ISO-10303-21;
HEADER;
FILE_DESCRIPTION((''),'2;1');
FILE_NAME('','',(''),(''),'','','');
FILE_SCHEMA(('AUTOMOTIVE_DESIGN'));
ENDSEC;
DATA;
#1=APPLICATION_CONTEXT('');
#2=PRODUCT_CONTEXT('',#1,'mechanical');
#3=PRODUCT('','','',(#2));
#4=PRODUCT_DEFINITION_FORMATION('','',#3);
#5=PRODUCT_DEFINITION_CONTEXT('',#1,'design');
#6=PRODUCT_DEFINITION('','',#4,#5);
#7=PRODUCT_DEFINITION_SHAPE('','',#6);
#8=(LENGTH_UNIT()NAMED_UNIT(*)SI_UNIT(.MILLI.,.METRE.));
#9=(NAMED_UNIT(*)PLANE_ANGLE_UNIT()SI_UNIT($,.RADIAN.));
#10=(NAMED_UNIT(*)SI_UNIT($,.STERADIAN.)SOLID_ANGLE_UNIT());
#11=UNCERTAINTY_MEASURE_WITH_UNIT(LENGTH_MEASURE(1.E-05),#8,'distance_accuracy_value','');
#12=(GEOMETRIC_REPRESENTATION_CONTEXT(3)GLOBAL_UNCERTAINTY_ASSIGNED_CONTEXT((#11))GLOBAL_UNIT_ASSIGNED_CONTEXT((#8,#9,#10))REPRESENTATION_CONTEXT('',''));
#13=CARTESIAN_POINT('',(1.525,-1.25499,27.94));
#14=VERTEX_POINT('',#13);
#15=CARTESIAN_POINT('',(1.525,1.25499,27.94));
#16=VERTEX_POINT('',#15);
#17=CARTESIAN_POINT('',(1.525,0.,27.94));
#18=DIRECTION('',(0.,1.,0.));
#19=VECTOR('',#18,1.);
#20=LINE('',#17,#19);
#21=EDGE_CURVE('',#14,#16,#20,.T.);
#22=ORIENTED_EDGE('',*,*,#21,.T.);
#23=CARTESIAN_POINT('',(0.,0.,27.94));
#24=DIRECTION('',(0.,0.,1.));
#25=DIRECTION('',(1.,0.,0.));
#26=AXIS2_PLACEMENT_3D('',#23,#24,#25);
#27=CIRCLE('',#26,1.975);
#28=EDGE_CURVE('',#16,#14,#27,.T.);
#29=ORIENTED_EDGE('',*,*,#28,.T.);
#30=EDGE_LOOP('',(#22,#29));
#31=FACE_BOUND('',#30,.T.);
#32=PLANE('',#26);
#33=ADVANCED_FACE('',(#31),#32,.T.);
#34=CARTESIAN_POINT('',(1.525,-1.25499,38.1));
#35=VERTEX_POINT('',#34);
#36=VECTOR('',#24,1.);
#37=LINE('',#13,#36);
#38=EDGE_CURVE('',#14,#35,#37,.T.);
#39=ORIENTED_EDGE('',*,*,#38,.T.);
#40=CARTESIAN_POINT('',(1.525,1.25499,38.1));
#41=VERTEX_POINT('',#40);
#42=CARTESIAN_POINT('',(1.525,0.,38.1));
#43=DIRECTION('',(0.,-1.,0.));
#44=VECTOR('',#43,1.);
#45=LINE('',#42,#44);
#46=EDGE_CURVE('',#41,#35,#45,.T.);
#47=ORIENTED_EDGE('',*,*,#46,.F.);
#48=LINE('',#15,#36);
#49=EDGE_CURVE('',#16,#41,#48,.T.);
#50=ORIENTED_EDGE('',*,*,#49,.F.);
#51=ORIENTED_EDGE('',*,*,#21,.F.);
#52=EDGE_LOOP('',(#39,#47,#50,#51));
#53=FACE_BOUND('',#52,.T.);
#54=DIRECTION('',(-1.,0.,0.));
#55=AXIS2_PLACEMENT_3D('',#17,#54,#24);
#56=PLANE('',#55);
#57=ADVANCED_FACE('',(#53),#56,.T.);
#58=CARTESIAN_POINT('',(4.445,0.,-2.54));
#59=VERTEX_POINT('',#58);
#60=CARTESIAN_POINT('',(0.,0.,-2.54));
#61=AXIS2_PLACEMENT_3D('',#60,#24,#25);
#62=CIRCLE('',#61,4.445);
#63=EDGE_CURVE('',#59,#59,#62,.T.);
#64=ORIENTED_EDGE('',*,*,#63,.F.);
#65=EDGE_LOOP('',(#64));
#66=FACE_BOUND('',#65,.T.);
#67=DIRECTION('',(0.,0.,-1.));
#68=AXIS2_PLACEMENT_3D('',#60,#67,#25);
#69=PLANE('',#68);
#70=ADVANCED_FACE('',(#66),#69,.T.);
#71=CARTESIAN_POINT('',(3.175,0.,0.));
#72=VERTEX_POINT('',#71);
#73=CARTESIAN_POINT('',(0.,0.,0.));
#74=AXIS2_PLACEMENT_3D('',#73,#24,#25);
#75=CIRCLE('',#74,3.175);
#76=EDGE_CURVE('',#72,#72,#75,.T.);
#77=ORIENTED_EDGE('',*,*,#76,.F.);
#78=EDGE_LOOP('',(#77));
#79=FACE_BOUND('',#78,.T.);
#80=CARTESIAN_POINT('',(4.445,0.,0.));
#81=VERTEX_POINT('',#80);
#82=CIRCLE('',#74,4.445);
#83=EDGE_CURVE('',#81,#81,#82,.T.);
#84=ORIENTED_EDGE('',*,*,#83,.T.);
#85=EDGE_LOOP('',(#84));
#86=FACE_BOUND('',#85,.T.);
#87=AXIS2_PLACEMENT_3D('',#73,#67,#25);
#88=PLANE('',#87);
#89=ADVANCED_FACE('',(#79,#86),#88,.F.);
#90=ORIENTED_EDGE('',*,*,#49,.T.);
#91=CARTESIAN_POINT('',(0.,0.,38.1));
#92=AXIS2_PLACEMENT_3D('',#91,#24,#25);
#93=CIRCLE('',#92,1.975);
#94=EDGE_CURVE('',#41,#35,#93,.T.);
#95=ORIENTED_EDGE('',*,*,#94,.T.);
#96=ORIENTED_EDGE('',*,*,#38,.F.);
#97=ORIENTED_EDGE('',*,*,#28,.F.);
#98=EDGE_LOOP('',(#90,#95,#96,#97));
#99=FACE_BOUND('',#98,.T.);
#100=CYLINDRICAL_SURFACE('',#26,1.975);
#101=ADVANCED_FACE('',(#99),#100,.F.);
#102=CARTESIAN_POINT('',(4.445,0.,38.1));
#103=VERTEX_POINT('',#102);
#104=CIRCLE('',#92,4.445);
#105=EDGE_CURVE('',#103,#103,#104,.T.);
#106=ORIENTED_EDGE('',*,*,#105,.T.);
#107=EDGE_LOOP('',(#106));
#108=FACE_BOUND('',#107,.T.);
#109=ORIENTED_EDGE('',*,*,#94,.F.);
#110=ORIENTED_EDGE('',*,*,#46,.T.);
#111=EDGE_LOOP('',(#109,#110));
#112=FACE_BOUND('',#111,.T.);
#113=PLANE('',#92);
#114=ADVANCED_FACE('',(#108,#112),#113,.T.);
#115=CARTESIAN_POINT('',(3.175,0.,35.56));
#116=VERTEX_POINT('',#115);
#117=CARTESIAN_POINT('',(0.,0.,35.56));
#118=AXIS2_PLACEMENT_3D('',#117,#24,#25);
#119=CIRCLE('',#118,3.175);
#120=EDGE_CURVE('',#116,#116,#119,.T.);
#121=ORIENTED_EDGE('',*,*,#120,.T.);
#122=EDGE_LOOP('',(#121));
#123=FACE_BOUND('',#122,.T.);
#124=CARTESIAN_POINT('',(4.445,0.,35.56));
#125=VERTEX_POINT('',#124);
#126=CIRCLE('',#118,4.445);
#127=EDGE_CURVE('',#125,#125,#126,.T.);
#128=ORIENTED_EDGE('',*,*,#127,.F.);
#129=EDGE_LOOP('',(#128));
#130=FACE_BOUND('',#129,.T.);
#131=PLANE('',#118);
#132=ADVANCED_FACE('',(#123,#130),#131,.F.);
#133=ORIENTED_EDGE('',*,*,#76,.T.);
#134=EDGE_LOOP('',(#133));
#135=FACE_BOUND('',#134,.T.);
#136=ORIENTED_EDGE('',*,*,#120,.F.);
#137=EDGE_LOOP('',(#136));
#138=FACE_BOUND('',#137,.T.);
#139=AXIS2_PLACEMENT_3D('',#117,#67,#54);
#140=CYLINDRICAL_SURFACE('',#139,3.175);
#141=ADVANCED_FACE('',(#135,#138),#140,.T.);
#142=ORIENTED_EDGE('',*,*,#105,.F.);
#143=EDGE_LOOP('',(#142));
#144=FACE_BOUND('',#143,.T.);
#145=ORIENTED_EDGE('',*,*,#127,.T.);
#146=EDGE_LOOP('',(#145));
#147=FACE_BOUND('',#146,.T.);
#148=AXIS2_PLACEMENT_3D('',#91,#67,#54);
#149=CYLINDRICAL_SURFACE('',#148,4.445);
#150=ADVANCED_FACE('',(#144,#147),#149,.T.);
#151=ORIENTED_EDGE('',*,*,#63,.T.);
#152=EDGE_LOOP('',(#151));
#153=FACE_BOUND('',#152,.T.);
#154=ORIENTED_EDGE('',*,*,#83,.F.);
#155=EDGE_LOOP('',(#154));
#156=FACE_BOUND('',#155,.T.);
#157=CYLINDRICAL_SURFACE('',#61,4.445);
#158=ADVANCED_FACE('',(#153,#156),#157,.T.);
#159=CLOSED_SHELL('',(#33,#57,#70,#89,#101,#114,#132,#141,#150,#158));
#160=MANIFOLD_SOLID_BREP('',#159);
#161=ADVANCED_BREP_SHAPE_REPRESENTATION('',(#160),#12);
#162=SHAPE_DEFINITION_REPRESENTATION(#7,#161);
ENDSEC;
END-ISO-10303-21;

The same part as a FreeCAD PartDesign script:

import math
import FreeCAD as App
import Part
import Sketcher

V = App.Vector
Q = App.Units.Quantity

doc = App.newDocument("Part")
body = doc.addObject("PartDesign::Body", "Body")

sketch1 = doc.addObject("Sketcher::SketchObject", "Sketch")
body.addObject(sketch1)
sketch1.AttachmentSupport = (doc.XY_Plane, [""])
sketch1.MapMode = "FlatFace"
sketch1.addGeometry(Part.Circle(V(0, 0, 0), V(0, 0, 1), 3.2), False)
sketch1.addConstraint(Sketcher.Constraint("Coincident", 0, 3, -1, 1))
sketch1.addConstraint(Sketcher.Constraint("Diameter", 0, Q("0.25 in")))
pad1 = doc.addObject("PartDesign::Pad", "Pad")
body.addObject(pad1)
pad1.Profile = sketch1
pad1.Length = Q("1.4 in")

sketch2 = doc.addObject("Sketcher::SketchObject", "Sketch001")
body.addObject(sketch2)
sketch2.AttachmentSupport = (doc.XY_Plane, [""])
sketch2.MapMode = "FlatFace"
sketch2.AttachmentOffset = App.Placement(V(0, 0, 1.4 * 25.4), App.Rotation())
sketch2.addGeometry(Part.Circle(V(0, 0, 0), V(0, 0, 1), 4.4), False)
sketch2.addConstraint(Sketcher.Constraint("Coincident", 0, 3, -1, 1))
sketch2.addConstraint(Sketcher.Constraint("Diameter", 0, Q("0.35 in")))
pad2 = doc.addObject("PartDesign::Pad", "Pad001")
body.addObject(pad2)
pad2.Profile = sketch2
pad2.Length = Q("0.1 in")
doc.recompute()

datumplane = doc.addObject("PartDesign::Plane", "DatumPlane")
body.addObject(datumplane)
datumplane.AttachmentSupport = (doc.XY_Plane, [""])
datumplane.MapMode = "FlatFace"
datumplane.AttachmentOffset = App.Placement(V(0, 0, 0.7 * 25.4), App.Rotation())
mirrored = doc.addObject("PartDesign::Mirrored", "Mirrored")
body.addObject(mirrored)
mirrored.Originals = [pad2]
mirrored.MirrorPlane = (datumplane, [""])
body.Tip = mirrored

sketch3 = doc.addObject("Sketcher::SketchObject", "Sketch002")
body.addObject(sketch3)
sketch3.AttachmentSupport = (doc.XY_Plane, [""])
sketch3.MapMode = "FlatFace"
sketch3.AttachmentOffset = App.Placement(V(0, 0, 1.5 * 25.4), App.Rotation())
sketch3.addGeometry(Part.ArcOfCircle(Part.Circle(V(0, 0, 0), V(0, 0, 1), 2), math.radians(39), math.radians(321)), False)
sketch3.addGeometry(Part.LineSegment(V(1.5, -1.3, 0), V(1.5, 1.3, 0)), False)
sketch3.addConstraint(Sketcher.Constraint("Coincident", 0, 1, 1, 2))
sketch3.addConstraint(Sketcher.Constraint("Coincident", 1, 1, 0, 2))
sketch3.addConstraint(Sketcher.Constraint("Vertical", 1))
sketch3.addConstraint(Sketcher.Constraint("Coincident", 0, 3, -1, 1))
sketch3.addConstraint(Sketcher.Constraint("Radius", 0, 1.975))
sketch3.addConstraint(Sketcher.Constraint("DistanceY", 1, 1, 1, 2, 2.50998))
pocket1 = doc.addObject("PartDesign::Pocket", "Pocket")
body.addObject(pocket1)
pocket1.Profile = sketch3
pocket1.Length = Q("0.4 in")

doc.recompute()
